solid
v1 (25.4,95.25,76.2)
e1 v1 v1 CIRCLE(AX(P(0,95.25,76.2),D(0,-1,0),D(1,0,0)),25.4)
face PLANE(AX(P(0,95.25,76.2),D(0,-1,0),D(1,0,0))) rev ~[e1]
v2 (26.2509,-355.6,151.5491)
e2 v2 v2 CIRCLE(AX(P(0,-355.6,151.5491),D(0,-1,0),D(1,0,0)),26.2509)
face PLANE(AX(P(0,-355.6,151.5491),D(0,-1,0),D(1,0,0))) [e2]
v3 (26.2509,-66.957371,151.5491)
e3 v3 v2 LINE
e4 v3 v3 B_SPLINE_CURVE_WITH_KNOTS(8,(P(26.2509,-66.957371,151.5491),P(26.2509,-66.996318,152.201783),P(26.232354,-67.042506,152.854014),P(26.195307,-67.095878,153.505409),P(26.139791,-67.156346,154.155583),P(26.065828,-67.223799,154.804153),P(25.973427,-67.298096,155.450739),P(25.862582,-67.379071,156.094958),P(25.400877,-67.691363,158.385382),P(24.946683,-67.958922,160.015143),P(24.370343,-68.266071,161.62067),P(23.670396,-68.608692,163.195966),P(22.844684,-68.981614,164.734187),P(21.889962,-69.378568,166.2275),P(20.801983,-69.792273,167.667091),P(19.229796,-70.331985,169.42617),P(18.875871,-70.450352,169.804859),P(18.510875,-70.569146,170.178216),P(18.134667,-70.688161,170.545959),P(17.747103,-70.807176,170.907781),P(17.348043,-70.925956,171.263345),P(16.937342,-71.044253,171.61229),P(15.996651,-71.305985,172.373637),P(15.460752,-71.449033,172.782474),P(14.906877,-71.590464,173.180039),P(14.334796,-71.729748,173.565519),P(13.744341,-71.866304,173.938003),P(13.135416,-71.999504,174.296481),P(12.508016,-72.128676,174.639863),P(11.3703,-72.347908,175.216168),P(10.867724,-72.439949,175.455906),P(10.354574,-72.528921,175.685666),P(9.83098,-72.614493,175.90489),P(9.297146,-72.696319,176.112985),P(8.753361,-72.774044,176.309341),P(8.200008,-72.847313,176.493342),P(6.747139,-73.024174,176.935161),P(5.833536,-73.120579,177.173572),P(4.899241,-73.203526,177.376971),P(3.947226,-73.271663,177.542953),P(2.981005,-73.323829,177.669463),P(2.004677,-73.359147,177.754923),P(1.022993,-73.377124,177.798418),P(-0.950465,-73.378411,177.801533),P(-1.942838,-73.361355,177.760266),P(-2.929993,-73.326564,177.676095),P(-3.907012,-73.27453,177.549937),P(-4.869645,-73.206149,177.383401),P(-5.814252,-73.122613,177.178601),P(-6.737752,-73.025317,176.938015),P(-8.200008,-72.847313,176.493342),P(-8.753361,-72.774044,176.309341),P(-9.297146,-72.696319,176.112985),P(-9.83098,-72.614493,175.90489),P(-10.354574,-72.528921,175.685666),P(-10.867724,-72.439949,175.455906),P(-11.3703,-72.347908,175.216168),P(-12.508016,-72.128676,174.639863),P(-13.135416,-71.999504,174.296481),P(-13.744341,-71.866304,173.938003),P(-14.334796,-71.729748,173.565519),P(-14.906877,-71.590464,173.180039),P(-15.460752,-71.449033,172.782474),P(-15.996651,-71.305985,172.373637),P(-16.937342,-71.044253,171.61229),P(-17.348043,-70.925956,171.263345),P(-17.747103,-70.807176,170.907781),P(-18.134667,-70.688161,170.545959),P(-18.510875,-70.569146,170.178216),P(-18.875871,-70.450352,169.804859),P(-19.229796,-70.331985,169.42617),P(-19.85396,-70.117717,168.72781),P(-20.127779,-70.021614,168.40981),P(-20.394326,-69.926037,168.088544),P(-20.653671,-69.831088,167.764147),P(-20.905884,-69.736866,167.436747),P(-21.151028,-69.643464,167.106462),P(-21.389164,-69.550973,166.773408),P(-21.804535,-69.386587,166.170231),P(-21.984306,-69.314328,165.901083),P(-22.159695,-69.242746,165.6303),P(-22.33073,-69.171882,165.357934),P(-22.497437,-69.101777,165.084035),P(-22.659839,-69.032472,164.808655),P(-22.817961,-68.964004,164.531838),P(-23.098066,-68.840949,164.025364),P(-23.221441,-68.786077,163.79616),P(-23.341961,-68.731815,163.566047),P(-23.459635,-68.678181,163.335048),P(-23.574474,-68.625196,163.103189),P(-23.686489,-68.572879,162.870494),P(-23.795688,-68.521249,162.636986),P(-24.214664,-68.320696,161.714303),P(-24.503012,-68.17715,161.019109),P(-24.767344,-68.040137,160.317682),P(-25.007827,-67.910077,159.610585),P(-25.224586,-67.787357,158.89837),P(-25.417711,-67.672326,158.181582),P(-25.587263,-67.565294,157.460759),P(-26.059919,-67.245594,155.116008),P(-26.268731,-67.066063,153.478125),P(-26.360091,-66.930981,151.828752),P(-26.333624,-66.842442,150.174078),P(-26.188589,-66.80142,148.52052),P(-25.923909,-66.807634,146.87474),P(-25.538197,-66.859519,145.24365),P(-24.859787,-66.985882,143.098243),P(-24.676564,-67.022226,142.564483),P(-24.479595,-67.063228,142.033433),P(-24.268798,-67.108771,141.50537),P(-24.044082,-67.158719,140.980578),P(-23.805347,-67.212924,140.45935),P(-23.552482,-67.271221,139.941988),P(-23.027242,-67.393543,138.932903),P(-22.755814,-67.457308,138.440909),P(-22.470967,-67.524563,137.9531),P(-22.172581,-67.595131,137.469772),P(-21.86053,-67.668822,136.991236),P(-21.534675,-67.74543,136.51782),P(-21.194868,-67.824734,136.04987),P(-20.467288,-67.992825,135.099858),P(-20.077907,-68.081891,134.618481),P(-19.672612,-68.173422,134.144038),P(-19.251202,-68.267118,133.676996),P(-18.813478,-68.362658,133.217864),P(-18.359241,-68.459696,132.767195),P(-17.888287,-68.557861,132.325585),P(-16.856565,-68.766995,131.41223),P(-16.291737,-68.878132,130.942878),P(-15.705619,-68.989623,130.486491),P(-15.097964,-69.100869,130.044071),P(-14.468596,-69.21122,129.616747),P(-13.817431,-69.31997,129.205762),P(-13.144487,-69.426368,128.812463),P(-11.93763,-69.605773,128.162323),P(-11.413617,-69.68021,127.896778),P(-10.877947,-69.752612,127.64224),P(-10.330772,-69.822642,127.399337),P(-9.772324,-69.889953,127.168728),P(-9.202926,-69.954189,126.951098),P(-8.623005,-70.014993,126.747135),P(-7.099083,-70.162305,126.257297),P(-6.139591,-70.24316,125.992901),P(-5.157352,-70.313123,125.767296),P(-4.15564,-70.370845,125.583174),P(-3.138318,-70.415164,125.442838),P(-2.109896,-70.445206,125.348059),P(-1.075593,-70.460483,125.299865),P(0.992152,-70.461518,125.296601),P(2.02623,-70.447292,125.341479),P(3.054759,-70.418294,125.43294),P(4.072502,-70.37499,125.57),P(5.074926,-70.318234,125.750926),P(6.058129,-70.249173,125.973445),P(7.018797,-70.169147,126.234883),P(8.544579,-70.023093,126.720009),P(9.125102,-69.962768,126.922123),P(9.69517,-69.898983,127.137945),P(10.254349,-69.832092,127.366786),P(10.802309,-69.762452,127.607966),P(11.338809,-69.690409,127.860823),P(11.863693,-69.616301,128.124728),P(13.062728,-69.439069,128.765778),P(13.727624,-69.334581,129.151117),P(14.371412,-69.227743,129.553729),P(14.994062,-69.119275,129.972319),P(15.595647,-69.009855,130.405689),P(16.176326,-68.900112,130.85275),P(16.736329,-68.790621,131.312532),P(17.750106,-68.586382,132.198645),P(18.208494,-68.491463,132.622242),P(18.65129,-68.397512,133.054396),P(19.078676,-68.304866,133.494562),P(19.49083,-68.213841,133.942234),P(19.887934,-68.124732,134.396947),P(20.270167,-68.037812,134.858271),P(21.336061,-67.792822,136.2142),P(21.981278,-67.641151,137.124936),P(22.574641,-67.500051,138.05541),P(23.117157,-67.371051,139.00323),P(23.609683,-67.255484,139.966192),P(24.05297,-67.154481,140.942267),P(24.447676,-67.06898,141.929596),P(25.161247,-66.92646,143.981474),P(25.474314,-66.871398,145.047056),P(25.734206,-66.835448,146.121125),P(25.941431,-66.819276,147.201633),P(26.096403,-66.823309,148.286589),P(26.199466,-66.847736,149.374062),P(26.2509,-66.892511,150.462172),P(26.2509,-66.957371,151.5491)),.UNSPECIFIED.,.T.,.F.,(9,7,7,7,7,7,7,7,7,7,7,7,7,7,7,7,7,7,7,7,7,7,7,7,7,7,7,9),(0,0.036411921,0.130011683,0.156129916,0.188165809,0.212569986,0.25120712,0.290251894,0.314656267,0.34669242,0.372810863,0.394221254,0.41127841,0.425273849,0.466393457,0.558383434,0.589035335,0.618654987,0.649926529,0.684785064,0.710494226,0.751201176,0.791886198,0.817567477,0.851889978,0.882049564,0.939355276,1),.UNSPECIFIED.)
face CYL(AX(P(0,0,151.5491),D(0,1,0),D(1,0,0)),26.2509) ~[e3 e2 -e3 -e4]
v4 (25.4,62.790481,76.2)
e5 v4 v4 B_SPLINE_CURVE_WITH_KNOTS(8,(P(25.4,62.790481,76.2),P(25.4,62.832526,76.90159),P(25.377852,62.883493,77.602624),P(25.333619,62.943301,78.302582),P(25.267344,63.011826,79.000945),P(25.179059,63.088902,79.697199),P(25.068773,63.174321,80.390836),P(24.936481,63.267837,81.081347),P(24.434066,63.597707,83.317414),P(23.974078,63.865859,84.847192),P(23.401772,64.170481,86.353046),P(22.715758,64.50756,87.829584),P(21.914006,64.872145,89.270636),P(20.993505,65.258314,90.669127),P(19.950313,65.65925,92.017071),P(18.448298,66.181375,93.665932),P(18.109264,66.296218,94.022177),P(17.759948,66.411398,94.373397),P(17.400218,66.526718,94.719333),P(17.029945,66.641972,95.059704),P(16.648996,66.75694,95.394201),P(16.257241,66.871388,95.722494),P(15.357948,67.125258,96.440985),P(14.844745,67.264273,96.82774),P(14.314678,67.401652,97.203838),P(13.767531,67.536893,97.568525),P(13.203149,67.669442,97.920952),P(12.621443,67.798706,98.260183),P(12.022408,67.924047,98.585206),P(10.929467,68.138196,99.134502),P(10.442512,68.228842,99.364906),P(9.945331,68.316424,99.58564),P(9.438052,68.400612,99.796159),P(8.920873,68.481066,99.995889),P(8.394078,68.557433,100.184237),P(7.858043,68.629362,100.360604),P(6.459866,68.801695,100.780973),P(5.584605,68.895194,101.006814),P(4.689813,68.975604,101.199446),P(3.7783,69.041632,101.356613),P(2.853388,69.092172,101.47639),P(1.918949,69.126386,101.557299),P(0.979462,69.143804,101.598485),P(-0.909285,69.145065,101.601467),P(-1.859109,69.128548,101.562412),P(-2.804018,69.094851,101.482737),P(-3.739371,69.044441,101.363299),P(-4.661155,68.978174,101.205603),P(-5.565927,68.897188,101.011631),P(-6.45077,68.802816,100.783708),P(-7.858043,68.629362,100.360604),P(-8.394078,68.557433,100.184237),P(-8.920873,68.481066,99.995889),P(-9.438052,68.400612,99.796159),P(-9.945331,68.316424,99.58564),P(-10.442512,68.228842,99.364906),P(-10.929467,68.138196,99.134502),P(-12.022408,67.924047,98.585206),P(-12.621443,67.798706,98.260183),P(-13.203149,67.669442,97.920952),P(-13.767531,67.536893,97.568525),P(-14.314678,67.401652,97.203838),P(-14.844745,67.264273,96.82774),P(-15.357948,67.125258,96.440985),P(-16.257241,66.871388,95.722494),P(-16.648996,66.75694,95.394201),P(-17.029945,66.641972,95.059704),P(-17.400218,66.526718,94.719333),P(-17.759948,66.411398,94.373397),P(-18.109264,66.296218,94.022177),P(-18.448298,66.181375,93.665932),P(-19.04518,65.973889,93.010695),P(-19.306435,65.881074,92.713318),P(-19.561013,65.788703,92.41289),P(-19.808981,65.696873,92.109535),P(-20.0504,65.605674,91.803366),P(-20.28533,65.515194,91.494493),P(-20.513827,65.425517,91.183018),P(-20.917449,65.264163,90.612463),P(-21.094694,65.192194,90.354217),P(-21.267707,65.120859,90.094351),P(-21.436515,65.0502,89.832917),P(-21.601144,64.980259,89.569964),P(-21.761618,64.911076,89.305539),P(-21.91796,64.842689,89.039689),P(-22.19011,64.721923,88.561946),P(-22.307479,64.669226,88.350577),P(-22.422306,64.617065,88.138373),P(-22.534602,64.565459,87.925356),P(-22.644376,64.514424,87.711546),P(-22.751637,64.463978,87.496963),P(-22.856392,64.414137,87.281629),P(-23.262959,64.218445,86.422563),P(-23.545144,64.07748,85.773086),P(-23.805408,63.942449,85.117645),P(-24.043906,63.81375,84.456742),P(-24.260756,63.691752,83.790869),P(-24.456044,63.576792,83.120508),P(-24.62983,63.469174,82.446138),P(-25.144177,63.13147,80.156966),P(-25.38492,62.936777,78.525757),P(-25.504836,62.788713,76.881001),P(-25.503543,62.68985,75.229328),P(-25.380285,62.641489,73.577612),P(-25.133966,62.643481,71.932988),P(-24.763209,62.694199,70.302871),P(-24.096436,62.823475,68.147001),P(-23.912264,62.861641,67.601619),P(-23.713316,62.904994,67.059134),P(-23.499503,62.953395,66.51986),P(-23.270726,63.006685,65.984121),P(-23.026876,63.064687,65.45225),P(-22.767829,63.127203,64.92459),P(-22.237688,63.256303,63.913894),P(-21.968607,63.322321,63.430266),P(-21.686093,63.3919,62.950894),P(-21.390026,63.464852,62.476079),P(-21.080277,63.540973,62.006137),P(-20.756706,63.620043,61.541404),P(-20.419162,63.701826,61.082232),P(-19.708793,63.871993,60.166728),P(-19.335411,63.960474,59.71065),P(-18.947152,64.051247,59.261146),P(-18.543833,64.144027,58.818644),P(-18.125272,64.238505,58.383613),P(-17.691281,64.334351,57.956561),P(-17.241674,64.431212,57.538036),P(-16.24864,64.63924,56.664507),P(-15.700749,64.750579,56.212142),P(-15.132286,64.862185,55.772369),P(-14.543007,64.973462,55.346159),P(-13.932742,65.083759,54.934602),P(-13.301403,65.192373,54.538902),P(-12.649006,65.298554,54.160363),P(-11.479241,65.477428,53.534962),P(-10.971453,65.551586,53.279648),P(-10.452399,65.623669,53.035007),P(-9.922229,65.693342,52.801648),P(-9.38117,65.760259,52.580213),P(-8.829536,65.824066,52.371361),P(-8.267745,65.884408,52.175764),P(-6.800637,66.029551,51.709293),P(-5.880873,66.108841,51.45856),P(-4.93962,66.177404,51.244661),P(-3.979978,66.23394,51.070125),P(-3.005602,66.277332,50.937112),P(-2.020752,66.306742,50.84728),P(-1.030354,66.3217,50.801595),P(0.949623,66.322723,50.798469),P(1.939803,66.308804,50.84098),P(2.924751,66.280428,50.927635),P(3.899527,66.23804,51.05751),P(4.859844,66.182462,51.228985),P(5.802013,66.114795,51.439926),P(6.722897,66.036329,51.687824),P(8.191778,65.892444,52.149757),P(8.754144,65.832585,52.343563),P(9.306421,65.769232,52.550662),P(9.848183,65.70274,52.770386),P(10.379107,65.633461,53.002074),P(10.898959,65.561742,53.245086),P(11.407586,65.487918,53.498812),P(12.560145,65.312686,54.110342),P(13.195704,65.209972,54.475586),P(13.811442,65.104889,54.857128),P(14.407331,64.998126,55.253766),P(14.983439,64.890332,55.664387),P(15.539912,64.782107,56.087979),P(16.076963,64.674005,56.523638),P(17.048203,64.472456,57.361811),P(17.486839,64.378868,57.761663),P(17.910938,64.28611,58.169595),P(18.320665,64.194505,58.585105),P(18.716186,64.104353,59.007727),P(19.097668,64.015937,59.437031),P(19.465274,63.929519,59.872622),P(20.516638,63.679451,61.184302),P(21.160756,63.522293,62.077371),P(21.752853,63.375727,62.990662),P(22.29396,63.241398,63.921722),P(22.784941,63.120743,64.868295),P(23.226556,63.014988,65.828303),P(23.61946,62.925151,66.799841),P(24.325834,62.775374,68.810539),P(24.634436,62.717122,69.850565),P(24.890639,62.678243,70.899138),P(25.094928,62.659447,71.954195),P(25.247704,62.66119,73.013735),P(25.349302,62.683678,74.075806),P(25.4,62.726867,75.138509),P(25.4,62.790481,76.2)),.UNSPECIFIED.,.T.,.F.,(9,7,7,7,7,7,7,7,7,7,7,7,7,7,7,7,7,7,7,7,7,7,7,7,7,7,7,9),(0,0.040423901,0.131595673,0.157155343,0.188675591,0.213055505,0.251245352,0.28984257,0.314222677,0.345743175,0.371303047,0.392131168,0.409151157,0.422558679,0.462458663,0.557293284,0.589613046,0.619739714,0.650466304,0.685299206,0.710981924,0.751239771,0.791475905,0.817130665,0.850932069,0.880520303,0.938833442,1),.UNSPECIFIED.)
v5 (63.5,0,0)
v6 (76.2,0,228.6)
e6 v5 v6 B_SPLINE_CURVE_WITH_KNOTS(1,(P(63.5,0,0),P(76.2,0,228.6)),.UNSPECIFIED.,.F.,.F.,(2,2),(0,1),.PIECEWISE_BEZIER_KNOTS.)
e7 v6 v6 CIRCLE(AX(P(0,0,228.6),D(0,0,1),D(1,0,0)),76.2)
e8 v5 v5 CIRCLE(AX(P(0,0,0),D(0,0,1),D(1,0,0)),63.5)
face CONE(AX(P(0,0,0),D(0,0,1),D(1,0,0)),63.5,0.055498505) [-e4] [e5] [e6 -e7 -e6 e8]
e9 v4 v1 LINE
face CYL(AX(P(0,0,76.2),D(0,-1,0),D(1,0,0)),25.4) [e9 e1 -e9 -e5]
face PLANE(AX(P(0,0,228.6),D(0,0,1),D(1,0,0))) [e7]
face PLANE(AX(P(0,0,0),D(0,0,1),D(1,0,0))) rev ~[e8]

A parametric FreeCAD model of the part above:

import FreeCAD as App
import Part
import Sketcher
from FreeCAD import Vector
Q = App.Units.Quantity

doc = App.newDocument("Part")
body = doc.addObject("PartDesign::Body", "Body")

sketch1 = body.newObject("Sketcher::SketchObject", "Sketch")
sketch1.AttachmentSupport = (doc.getObject("XY_Plane"), [""])
sketch1.MapMode = "FlatFace"
sketch1.addGeometry(Part.Circle(Vector(0, 0, 0), Vector(0, 0, 1), 64), False)
sketch1.addConstraint(Sketcher.Constraint("Coincident", 0, 3, -1, 1))
sketch1.addConstraint(Sketcher.Constraint("Diameter", 0, Q("5 in")))

sketch2 = body.newObject("Sketcher::SketchObject", "Sketch001")
sketch2.AttachmentSupport = (doc.getObject("XY_Plane"), [""])
sketch2.MapMode = "FlatFace"
sketch2.AttachmentOffset = App.Placement(Vector(0, 0, 9 * 25.4), App.Rotation())
sketch2.addGeometry(Part.Circle(Vector(0, 0, 0), Vector(0, 0, 1), 76), False)
sketch2.addConstraint(Sketcher.Constraint("Coincident", 0, 3, -1, 1))
sketch2.addConstraint(Sketcher.Constraint("Diameter", 0, Q("6 in")))

additiveloft = body.newObject("PartDesign::AdditiveLoft", "AdditiveLoft")
additiveloft.Profile = sketch1
additiveloft.Sections = [sketch2]

sketch3 = body.newObject("Sketcher::SketchObject", "Sketch002")
sketch3.AttachmentSupport = (doc.getObject("XZ_Plane"), [""])
sketch3.MapMode = "FlatFace"
sketch3.addGeometry(Part.Circle(Vector(0, 152, 0), Vector(0, 0, 1), 26), False)
sketch3.addConstraint(Sketcher.Constraint("PointOnObject", 0, 3, -2))
sketch3.addConstraint(Sketcher.Constraint("Diameter", 0, Q("2.067 in")))
sketch3.addConstraint(Sketcher.Constraint("DistanceY", -1, 1, 0, 3, Q("5.9665 in")))
pad1 = body.newObject("PartDesign::Pad", "Pad")
pad1.Profile = sketch3
pad1.Length = Q("14 in")

sketch4 = body.newObject("Sketcher::SketchObject", "Sketch003")
sketch4.AttachmentSupport = (doc.getObject("XZ_Plane"), [""])
sketch4.MapMode = "FlatFace"
sketch4.addGeometry(Part.Circle(Vector(0, 76, 0), Vector(0, 0, 1), 25), False)
sketch4.addConstraint(Sketcher.Constraint("PointOnObject", 0, 3, -2))
sketch4.addConstraint(Sketcher.Constraint("Diameter", 0, Q("2 in")))
sketch4.addConstraint(Sketcher.Constraint("DistanceY", -1, 1, 0, 3, Q("3 in")))
pad2 = body.newObject("PartDesign::Pad", "Pad001")
pad2.Profile = sketch4
pad2.Length = Q("3.75 in")
pad2.Reversed = True

doc.recompute()
